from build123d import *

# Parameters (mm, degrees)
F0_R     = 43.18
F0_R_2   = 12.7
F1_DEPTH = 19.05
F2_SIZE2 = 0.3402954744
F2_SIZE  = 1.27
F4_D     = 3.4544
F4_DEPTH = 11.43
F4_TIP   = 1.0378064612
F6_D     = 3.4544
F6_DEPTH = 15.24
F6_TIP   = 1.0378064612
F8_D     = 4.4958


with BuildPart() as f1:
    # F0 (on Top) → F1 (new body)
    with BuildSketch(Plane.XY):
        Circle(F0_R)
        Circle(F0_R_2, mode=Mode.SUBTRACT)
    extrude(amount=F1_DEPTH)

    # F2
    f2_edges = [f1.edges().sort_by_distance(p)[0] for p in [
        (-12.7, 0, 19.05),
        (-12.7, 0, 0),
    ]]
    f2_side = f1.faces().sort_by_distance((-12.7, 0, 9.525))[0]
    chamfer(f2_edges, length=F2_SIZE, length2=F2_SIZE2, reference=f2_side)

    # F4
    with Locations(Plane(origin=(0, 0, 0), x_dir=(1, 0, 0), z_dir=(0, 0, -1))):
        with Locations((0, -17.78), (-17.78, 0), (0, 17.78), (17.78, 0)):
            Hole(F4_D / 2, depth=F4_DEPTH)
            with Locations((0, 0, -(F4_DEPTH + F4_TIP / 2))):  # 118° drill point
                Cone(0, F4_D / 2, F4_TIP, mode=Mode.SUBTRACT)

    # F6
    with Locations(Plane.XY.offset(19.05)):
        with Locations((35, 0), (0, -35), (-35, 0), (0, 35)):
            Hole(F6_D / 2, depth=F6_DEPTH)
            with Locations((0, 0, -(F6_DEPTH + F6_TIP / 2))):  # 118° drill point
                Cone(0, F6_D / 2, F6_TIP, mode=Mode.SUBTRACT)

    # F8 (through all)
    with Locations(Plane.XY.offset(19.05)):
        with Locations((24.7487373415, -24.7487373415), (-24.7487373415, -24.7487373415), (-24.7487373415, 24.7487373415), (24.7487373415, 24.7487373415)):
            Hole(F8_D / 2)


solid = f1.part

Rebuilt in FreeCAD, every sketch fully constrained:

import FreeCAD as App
import Part
import Sketcher

V = App.Vector
Q = App.Units.Quantity


def edges_at(feature, points):
    """Names of the edges that pass closest to the given points."""
    edges = feature.Shape.Edges
    near = lambda p: min(range(len(edges)), key=lambda i: edges[i].distToShape(Part.Vertex(*p))[0])
    return sorted({f"Edge{near(p) + 1}" for p in points})

doc = App.newDocument("Part")
params = doc.addObject("Spreadsheet::Sheet", "Params")
for row, (alias, value) in enumerate([
    ("sketch1_diameter", "1 in"),
    ("sketch1_diameter2", "3.4 in"),
    ("pad1_length", "0.75 in"),
    ("chamfer_size", "0.05 in"),
    ("chamfer_size2", "0.340295 mm"),
    ("sketch2_diameter", "0.136 in"),
    ("hole_diameter", "0.136 in"),
    ("hole_depth", "0.45 in"),
    ("sketch3_diameter", "0.136 in"),
    ("hole2_diameter", "0.136 in"),
    ("hole2_depth", "0.6 in"),
    ("sketch4_diameter", "0.177 in"),
    ("hole3_diameter", "0.177 in"),
], start=1):
    params.set(f"A{row}", alias)
    params.set(f"B{row}", "=" + value)
    params.setAlias(f"B{row}", alias)

body = doc.addObject("PartDesign::Body", "Body")

# Sketch on XY plane
sketch1 = body.newObject("Sketcher::SketchObject", "Sketch")
sketch1.AttachmentSupport = (doc.getObject("XY_Plane"), [""])
sketch1.MapMode = "FlatFace"
sketch1.addGeometry([
    Part.Circle(V(0, 0, 0), V(0, 0, 1), 43.18),
    Part.Circle(V(0, 0, 0), V(0, 0, 1), 12.7),
], False)
sketch1.addConstraint([
    Sketcher.Constraint("Coincident", 0, 3, -1, 1),
    Sketcher.Constraint("Coincident", 1, 3, -1, 1),
    Sketcher.Constraint("Diameter", 1, Q("1 in")),
    Sketcher.Constraint("Diameter", 0, Q("3.4 in")),
])
sketch1.setExpression("Constraints[2]", "Params.sketch1_diameter")
sketch1.setExpression("Constraints[3]", "Params.sketch1_diameter2")
pad1 = body.newObject("PartDesign::Pad", "Pad")
pad1.Profile = sketch1
pad1.setExpression("Length", "Params.pad1_length")
doc.recompute()

chamfer = body.newObject("PartDesign::Chamfer", "Chamfer")
chamfer.Base = (pad1, edges_at(pad1, [(-12.7, 0, 19.05), (-12.7, 0, 0)]))
chamfer.ChamferType = "Two distances"
chamfer.setExpression("Size", "Params.chamfer_size")
chamfer.setExpression("Size2", "Params.chamfer_size2")

# Sketch on XY plane
sketch2 = body.newObject("Sketcher::SketchObject", "Sketch001")
sketch2.AttachmentSupport = (doc.getObject("XY_Plane"), [""])
sketch2.MapMode = "FlatFace"
sketch2.addGeometry([
    Part.Circle(V(0, 17.78, 0), V(0, 0, 1), 1.7272),
    Part.Circle(V(-17.78, 0, 0), V(0, 0, 1), 1.7272),
    Part.Circle(V(0, -17.78, 0), V(0, 0, 1), 1.7272),
    Part.Circle(V(17.78, 0, 0), V(0, 0, 1), 1.7272),
], False)
sketch2.addConstraint([
    Sketcher.Constraint("Equal", 0, 1),
    Sketcher.Constraint("Equal", 1, 2),
    Sketcher.Constraint("Equal", 2, 3),
    Sketcher.Constraint("Symmetric", 0, 3, 2, 3, -1, 1),
    Sketcher.Constraint("Symmetric", 1, 3, 3, 3, -1, 1),
    Sketcher.Constraint("PointOnObject", 0, 3, -2),
    Sketcher.Constraint("PointOnObject", 1, 3, -1),
    Sketcher.Constraint("Diameter", 0, Q("0.136 in")),
    Sketcher.Constraint("DistanceY", -1, 1, 0, 3, Q("0.7 in")),
    Sketcher.Constraint("DistanceX", 1, 3, -1, 1, Q("0.7 in")),
])
sketch2.setExpression("Constraints[7]", "Params.sketch2_diameter")
doc.recompute()
hole = body.newObject("PartDesign::Hole", "Hole")
hole.Profile = sketch2
hole.ThreadType = "None"
hole.setExpression("Diameter", "Params.hole_diameter")
hole.DepthType = "Dimension"
hole.setExpression("Depth", "Params.hole_depth")
hole.DrillPoint = "Angled"
hole.DrillPointAngle = 118
hole.Reversed = True

# Sketch on XY plane
sketch3 = body.newObject("Sketcher::SketchObject", "Sketch002")
sketch3.AttachmentSupport = (doc.getObject("XY_Plane"), [""])
sketch3.MapMode = "FlatFace"
sketch3.AttachmentOffset = App.Placement(V(0, 0, 0.75 * 25.4), App.Rotation())
sketch3.addGeometry([
    Part.Circle(V(35, 0, 0), V(0, 0, 1), 1.7272),
    Part.Circle(V(0, -35, 0), V(0, 0, 1), 1.7272),
    Part.Circle(V(-35, 0, 0), V(0, 0, 1), 1.7272),
    Part.Circle(V(0, 35, 0), V(0, 0, 1), 1.7272),
], False)
sketch3.addConstraint([
    Sketcher.Constraint("Equal", 0, 1),
    Sketcher.Constraint("Equal", 1, 2),
    Sketcher.Constraint("Equal", 2, 3),
    Sketcher.Constraint("Symmetric", 0, 3, 2, 3, -1, 1),
    Sketcher.Constraint("Symmetric", 1, 3, 3, 3, -1, 1),
    Sketcher.Constraint("PointOnObject", 0, 3, -1),
    Sketcher.Constraint("PointOnObject", 1, 3, -2),
    Sketcher.Constraint("Diameter", 0, Q("0.136 in")),
    Sketcher.Constraint("DistanceX", -1, 1, 0, 3, Q("35 mm")),
    Sketcher.Constraint("DistanceY", 1, 3, -1, 1, Q("35 mm")),
])
sketch3.setExpression("Constraints[7]", "Params.sketch3_diameter")
doc.recompute()
hole2 = body.newObject("PartDesign::Hole", "Hole001")
hole2.Profile = sketch3
hole2.ThreadType = "None"
hole2.setExpression("Diameter", "Params.hole2_diameter")
hole2.DepthType = "Dimension"
hole2.setExpression("Depth", "Params.hole2_depth")
hole2.DrillPoint = "Angled"
hole2.DrillPointAngle = 118

# Sketch on XY plane
sketch4 = body.newObject("Sketcher::SketchObject", "Sketch003")
sketch4.AttachmentSupport = (doc.getObject("XY_Plane"), [""])
sketch4.MapMode = "FlatFace"
sketch4.AttachmentOffset = App.Placement(V(0, 0, 0.75 * 25.4), App.Rotation())
sketch4.addGeometry([
    Part.Circle(V(24.748737, -24.748737, 0), V(0, 0, 1), 2.2479),
    Part.Circle(V(-24.748737, -24.748737, 0), V(0, 0, 1), 2.2479),
    Part.Circle(V(-24.748737, 24.748737, 0), V(0, 0, 1), 2.2479),
    Part.Circle(V(24.748737, 24.748737, 0), V(0, 0, 1), 2.2479),
], False)
sketch4.addConstraint([
    Sketcher.Constraint("Equal", 0, 1),
    Sketcher.Constraint("Equal", 1, 2),
    Sketcher.Constraint("Equal", 2, 3),
    Sketcher.Constraint("Symmetric", 0, 3, 2, 3, -1, 1),
    Sketcher.Constraint("Symmetric", 1, 3, 3, 3, -1, 1),
    Sketcher.Constraint("Symmetric", 0, 3, 1, 3, -2),
    Sketcher.Constraint("Diameter", 0, Q("0.177 in")),
    Sketcher.Constraint("DistanceX", -1, 1, 0, 3, Q("24.748737 mm")),
    Sketcher.Constraint("DistanceY", 0, 3, -1, 1, Q("24.748737 mm")),
])
sketch4.setExpression("Constraints[6]", "Params.sketch4_diameter")
doc.recompute()
hole3 = body.newObject("PartDesign::Hole", "Hole002")
hole3.Profile = sketch4
hole3.ThreadType = "None"
hole3.setExpression("Diameter", "Params.hole3_diameter")
hole3.DepthType = "ThroughAll"

doc.recompute()
